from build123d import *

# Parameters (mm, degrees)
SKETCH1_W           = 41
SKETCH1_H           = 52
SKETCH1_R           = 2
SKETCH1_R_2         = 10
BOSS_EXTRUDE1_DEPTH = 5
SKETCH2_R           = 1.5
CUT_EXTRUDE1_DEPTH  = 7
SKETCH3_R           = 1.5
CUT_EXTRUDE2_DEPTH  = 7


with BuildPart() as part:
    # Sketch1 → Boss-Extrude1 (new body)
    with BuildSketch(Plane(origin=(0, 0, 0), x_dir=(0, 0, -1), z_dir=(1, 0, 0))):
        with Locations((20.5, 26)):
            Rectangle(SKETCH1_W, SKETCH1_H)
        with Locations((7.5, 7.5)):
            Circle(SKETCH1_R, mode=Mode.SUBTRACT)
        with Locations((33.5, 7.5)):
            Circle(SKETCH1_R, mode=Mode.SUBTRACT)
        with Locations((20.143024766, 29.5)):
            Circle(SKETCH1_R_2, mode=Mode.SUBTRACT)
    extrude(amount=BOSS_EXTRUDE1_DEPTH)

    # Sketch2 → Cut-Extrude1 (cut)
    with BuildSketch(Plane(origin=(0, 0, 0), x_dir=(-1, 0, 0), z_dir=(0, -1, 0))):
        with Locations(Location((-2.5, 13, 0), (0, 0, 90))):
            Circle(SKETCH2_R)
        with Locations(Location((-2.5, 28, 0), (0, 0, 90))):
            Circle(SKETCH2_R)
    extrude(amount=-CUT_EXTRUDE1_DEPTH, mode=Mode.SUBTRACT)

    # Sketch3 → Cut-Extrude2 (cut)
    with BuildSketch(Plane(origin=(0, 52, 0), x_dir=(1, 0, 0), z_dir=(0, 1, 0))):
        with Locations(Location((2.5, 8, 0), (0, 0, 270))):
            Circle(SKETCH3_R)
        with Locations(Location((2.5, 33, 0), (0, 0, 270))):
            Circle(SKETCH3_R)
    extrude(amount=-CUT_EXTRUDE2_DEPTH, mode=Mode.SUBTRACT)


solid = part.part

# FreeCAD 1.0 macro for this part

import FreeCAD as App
import Part
import Sketcher
Q = App.Units.Quantity


def add_polygon(sketch, points):
    """Adds a closed chain of lines whose ends are joined by coincident constraints."""
    first, n = sketch.GeometryCount, len(points)
    for a, b in zip(points, points[1:] + points[:1]):
        sketch.addGeometry(Part.LineSegment(App.Vector(*a, 0), App.Vector(*b, 0)), False)
    for i in range(n):
        sketch.addConstraint(Sketcher.Constraint("Coincident", first + i, 2, first + (i + 1) % n, 1))

doc = App.newDocument("Part")
body = doc.addObject("PartDesign::Body", "Body")

sketch1 = doc.addObject("Sketcher::SketchObject", "Sketch")
body.addObject(sketch1)
sketch1.AttachmentSupport = (doc.YZ_Plane, [""])
sketch1.MapMode = "FlatFace"
add_polygon(sketch1, [(52, 0), (0, 0), (0, -41), (52, -41)])
sketch1.addGeometry(Part.Circle(App.Vector(7.5, -7.5, 0), App.Vector(0, 0, 1), 2), False)
sketch1.addGeometry(Part.Circle(App.Vector(7.5, -33.5, 0), App.Vector(0, 0, 1), 2), False)
sketch1.addGeometry(Part.Circle(App.Vector(29.5, -20.1, 0), App.Vector(0, 0, 1), 10), False)
sketch1.addConstraint([
    Sketcher.Constraint("Horizontal", 0),
    Sketcher.Constraint("Vertical", 1),
    Sketcher.Constraint("Horizontal", 2),
    Sketcher.Constraint("Vertical", 3),
    Sketcher.Constraint("Coincident", 0, 2, -1, 1),
    Sketcher.Constraint("Equal", 4, 5),
    Sketcher.Constraint("Vertical", 4, 3, 5, 3),
    Sketcher.Constraint("Diameter", 4, Q("4 mm")),
    Sketcher.Constraint("Diameter", 6, Q("20 mm")),
    Sketcher.Constraint("DistanceX", 0, 2, 0, 1, Q("52 mm")),
    Sketcher.Constraint("DistanceY", 1, 2, 1, 1, Q("41 mm")),
    Sketcher.Constraint("DistanceY", 5, 3, 4, 3, Q("26 mm")),
    Sketcher.Constraint("DistanceX", 4, 3, 6, 3, Q("22 mm")),
    Sketcher.Constraint("DistanceX", -1, 1, 4, 3, Q("7.5 mm")),
    Sketcher.Constraint("DistanceY", 4, 3, -1, 1, Q("7.5 mm")),
    Sketcher.Constraint("DistanceY", 6, 3, -1, 1, Q("20.143025 mm")),
])
pad1 = doc.addObject("PartDesign::Pad", "Pad")
body.addObject(pad1)
pad1.Profile = sketch1
pad1.Length = 5

sketch2 = doc.addObject("Sketcher::SketchObject", "Sketch001")
body.addObject(sketch2)
sketch2.AttachmentSupport = (doc.XZ_Plane, [""])
sketch2.MapMode = "FlatFace"
sketch2.addGeometry([
    Part.Circle(App.Vector(2.5, -13, 0), App.Vector(0, 0, 1), 1.5),
    Part.Circle(App.Vector(2.5, -28, 0), App.Vector(0, 0, 1), 1.5),
], False)
sketch2.addConstraint([
    Sketcher.Constraint("Equal", 0, 1),
    Sketcher.Constraint("Vertical", 0, 3, 1, 3),
    Sketcher.Constraint("Diameter", 0, Q("3 mm")),
    Sketcher.Constraint("DistanceY", 0, 3, -1, 1, Q("13 mm")),
    Sketcher.Constraint("DistanceY", 1, 3, -1, 1, Q("28 mm")),
    Sketcher.Constraint("DistanceX", -1, 1, 0, 3, Q("2.5 mm")),
])
pocket1 = doc.addObject("PartDesign::Pocket", "Pocket")
body.addObject(pocket1)
pocket1.Profile = sketch2
pocket1.Length = 7

sketch3 = doc.addObject("Sketcher::SketchObject", "Sketch002")
body.addObject(sketch3)
sketch3.AttachmentSupport = (doc.XZ_Plane, [""])
sketch3.MapMode = "FlatFace"
sketch3.AttachmentOffset = App.Placement(App.Vector(0, 0, -52), App.Rotation())
sketch3.addGeometry([
    Part.Circle(App.Vector(2.5, -8, 0), App.Vector(0, 0, 1), 1.5),
    Part.Circle(App.Vector(2.5, -33, 0), App.Vector(0, 0, 1), 1.5),
], False)
sketch3.addConstraint([
    Sketcher.Constraint("Equal", 0, 1),
    Sketcher.Constraint("Vertical", 0, 3, 1, 3),
    Sketcher.Constraint("Diameter", 0, Q("3 mm")),
    Sketcher.Constraint("DistanceY", 0, 3, -1, 1, Q("8 mm")),
    Sketcher.Constraint("DistanceY", 1, 3, -1, 1, Q("33 mm")),
    Sketcher.Constraint("DistanceX", -1, 1, 0, 3, Q("2.5 mm")),
])
pocket2 = doc.addObject("PartDesign::Pocket", "Pocket001")
body.addObject(pocket2)
pocket2.Profile = sketch3
pocket2.Length = 7
pocket2.Reversed = True

doc.recompute()
